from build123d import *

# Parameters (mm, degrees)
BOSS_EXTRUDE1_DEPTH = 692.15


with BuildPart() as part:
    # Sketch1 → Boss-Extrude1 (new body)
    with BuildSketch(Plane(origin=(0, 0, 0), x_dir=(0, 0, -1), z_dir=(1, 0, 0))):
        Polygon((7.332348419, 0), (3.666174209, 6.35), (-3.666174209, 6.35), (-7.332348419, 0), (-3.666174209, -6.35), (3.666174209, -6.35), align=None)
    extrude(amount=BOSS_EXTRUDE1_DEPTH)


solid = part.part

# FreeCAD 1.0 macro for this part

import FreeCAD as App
import Part
import Sketcher

V = App.Vector
Q = App.Units.Quantity


def add_polygon(sketch, points):
    """Adds a closed chain of lines whose ends are joined by coincident constraints."""
    first, n = sketch.GeometryCount, len(points)
    for a, b in zip(points, points[1:] + points[:1]):
        sketch.addGeometry(Part.LineSegment(App.Vector(*a, 0), App.Vector(*b, 0)), False)
    for i in range(n):
        sketch.addConstraint(Sketcher.Constraint("Coincident", first + i, 2, first + (i + 1) % n, 1))

doc = App.newDocument("Part")
body = doc.addObject("PartDesign::Body", "Body")

# Sketch on YZ plane
sketch1 = body.newObject("Sketcher::SketchObject", "Sketch")
sketch1.AttachmentSupport = (doc.getObject("YZ_Plane"), [""])
sketch1.MapMode = "FlatFace"
add_polygon(sketch1, [(0, -7.332348), (6.35, -3.666174), (6.35, 3.666174), (0, 7.332348), (-6.35, 3.666174), (-6.35, -3.666174)])  # lines 0-5
sketch1.addConstraint(Sketcher.Constraint("Vertical", 1))
sketch1.addConstraint(Sketcher.Constraint("Vertical", 4))
sketch1.addConstraint(Sketcher.Constraint("Symmetric", 0, 2, 3, 2, -1, 1))
sketch1.addConstraint(Sketcher.Constraint("Symmetric", 2, 2, 5, 2, -1, 1))
sketch1.addConstraint(Sketcher.Constraint("PointOnObject", 2, 2, -2))
sketch1.addConstraint(Sketcher.Constraint("Parallel", 2, 5))
sketch1.addConstraint(Sketcher.Constraint("Horizontal", 1, 2, 3, 2))
sketch1.addConstraint(Sketcher.Constraint("Angle", 0, Q("30 deg")))
sketch1.addConstraint(Sketcher.Constraint("DistanceX", 3, 2, 1, 2, Q("0.5 in")))
sketch1.addConstraint(Sketcher.Constraint("DistanceY", 1, 1, 1, 2, 7.332348))
pad1 = body.newObject("PartDesign::Pad", "Pad")
pad1.Profile = sketch1
pad1.Length = Q("27.25 in")

doc.recompute()
